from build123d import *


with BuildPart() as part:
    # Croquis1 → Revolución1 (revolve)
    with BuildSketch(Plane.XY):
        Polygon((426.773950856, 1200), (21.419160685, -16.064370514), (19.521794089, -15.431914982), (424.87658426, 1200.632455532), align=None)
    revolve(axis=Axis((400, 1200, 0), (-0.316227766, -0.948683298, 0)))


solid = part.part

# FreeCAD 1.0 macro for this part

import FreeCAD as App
import Part
import Sketcher

V = App.Vector


def add_polygon(sketch, points):
    """Adds a closed chain of lines whose ends are joined by coincident constraints."""
    first, n = sketch.GeometryCount, len(points)
    for a, b in zip(points, points[1:] + points[:1]):
        sketch.addGeometry(Part.LineSegment(App.Vector(*a, 0), App.Vector(*b, 0)), False)
    for i in range(n):
        sketch.addConstraint(Sketcher.Constraint("Coincident", first + i, 2, first + (i + 1) % n, 1))

doc = App.newDocument("Part")
params = doc.addObject("Spreadsheet::Sheet", "Params")
for row, (alias, value) in enumerate([
    ("sketch1_length", "2 mm"),
    ("revolution_angle", "360 deg"),
], start=1):
    params.set(f"A{row}", alias)
    params.set(f"B{row}", "=" + value)
    params.setAlias(f"B{row}", alias)

body = doc.addObject("PartDesign::Body", "Body")

sketch1 = doc.addObject("Sketcher::SketchObject", "Sketch")
body.addObject(sketch1)
sketch1.AttachmentSupport = (doc.XY_Plane, [""])
sketch1.MapMode = "FlatFace"
add_polygon(sketch1, [(21.4, -16.1), (426.8, 1200), (424.9, 1200.6), (19.5, -15.4)])
sketch1.addGeometry(Part.LineSegment(V(402.7, 1208, 0), V(-2.7, -8, 0)), True)
sketch1.addConstraint([
    Sketcher.Constraint("Perpendicular", 0, 1),
    Sketcher.Constraint("Parallel", 0, 2),
    Sketcher.Constraint("Perpendicular", 2, 3),
    Sketcher.Constraint("Parallel", 2, 4),
    Sketcher.Constraint("Equal", 2, 4),
    Sketcher.Constraint("Distance", 1, 2.0),
    Sketcher.Constraint("DistanceY", -1, 1, 0, 2, 1200.0),
    Sketcher.Constraint("DistanceX", 2, 2, 4, 1, 383.155601),
    Sketcher.Constraint("DistanceY", 2, 2, 4, 1, 1223.4641),
    Sketcher.Constraint("DistanceX", -1, 1, 0, 2, 426.773951),
    Sketcher.Constraint("DistanceX", -1, 1, 3, 2, 21.419161),
    Sketcher.Constraint("DistanceY", 3, 2, -1, 1, 16.064371),
])
sketch1.setExpression("Constraints[9]", "Params.sketch1_length")
revolution = doc.addObject("PartDesign::Revolution", "Revolution")
body.addObject(revolution)
revolution.Profile = sketch1
revolution.ReferenceAxis = (sketch1, ["Axis0"])
revolution.setExpression("Angle", "Params.revolution_angle")

doc.recompute()
